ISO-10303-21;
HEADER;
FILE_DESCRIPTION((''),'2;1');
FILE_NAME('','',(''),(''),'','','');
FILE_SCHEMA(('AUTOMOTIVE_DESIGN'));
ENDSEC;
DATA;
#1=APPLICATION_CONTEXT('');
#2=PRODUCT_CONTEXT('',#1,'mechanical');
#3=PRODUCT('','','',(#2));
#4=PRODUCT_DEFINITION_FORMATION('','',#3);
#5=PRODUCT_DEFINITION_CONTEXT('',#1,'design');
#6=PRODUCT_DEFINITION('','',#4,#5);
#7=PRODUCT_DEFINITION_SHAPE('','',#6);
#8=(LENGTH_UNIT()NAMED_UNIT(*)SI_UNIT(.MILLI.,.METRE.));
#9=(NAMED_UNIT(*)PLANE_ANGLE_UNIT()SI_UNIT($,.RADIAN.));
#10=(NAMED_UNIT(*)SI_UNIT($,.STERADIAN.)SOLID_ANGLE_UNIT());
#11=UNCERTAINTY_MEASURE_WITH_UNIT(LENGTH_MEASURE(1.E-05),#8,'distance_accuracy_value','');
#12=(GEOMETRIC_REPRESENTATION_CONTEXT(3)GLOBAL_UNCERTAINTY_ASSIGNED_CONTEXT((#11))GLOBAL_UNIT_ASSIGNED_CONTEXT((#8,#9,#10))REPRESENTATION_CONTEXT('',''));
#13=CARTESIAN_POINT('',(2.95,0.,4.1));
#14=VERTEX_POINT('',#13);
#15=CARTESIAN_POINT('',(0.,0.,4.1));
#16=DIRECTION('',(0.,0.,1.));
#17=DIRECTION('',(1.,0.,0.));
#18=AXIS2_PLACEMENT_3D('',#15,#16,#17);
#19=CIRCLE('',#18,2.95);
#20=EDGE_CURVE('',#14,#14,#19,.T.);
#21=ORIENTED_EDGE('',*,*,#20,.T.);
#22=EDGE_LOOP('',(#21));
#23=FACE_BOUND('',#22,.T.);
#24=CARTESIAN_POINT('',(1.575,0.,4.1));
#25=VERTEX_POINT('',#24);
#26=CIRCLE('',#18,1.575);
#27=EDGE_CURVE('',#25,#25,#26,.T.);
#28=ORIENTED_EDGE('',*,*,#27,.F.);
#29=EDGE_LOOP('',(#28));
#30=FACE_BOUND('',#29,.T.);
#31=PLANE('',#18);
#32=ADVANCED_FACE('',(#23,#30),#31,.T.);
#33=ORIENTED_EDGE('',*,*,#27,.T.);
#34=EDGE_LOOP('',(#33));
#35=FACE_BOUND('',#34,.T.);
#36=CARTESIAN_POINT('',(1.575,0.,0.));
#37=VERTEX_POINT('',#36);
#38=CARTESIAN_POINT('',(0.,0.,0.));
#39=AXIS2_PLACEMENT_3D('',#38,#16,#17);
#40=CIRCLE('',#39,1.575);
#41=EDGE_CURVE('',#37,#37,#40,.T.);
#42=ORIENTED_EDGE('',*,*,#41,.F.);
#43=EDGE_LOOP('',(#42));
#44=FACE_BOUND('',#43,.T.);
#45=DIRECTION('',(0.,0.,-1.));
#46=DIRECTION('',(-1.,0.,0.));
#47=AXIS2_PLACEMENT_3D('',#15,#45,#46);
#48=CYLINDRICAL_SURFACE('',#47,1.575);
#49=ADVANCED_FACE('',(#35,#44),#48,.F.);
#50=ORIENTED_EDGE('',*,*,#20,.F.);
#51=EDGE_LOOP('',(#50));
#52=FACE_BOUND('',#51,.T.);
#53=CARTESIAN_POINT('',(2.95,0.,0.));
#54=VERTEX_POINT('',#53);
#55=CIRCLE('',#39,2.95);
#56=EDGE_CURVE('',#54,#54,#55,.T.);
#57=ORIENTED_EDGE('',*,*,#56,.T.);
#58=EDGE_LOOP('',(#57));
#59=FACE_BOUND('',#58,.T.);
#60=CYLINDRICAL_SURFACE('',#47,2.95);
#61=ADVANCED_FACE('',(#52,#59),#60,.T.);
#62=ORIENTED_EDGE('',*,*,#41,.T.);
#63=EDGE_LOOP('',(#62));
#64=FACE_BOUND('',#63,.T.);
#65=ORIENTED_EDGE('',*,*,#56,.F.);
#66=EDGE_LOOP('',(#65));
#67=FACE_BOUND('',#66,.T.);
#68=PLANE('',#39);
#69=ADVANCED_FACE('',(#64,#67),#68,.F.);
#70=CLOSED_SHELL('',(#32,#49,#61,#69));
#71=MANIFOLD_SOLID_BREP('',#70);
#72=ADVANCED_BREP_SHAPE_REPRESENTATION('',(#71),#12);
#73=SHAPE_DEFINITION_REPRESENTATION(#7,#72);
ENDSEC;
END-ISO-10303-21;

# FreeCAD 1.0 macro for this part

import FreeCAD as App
import Part
import Sketcher
from FreeCAD import Vector

doc = App.newDocument("Part")
params = doc.addObject("Spreadsheet::Sheet", "Params")
for row, (alias, value) in enumerate([
    ("sketch1_diameter", "5.9 mm"),
    ("sketch1_diameter2", "3.15 mm"),
    ("pad1_length", "4.1 mm"),
], start=1):
    params.set(f"A{row}", alias)
    params.set(f"B{row}", "=" + value)
    params.setAlias(f"B{row}", alias)

body = doc.addObject("PartDesign::Body", "Body")

# Sketch on XY plane
sketch1 = body.newObject("Sketcher::SketchObject", "Sketch")
sketch1.AttachmentSupport = (doc.getObject("XY_Plane"), [""])
sketch1.MapMode = "FlatFace"
sketch1.addGeometry([
    Part.Circle(Vector(0, 0, 0), Vector(0, 0, 1), 3),
    Part.Circle(Vector(0, 0, 0), Vector(0, 0, 1), 1.6),
], False)
sketch1.addConstraint([
    Sketcher.Constraint("Coincident", 0, 3, -1, 1),
    Sketcher.Constraint("Coincident", 1, 3, -1, 1),
    Sketcher.Constraint("Diameter", 0, 5.9),
    Sketcher.Constraint("Diameter", 1, 3.15),
])
sketch1.setExpression("Constraints[2]", "Params.sketch1_diameter")
sketch1.setExpression("Constraints[3]", "Params.sketch1_diameter2")
pad1 = body.newObject("PartDesign::Pad", "Pad")
pad1.Profile = sketch1
pad1.setExpression("Length", "Params.pad1_length")

doc.recompute()
